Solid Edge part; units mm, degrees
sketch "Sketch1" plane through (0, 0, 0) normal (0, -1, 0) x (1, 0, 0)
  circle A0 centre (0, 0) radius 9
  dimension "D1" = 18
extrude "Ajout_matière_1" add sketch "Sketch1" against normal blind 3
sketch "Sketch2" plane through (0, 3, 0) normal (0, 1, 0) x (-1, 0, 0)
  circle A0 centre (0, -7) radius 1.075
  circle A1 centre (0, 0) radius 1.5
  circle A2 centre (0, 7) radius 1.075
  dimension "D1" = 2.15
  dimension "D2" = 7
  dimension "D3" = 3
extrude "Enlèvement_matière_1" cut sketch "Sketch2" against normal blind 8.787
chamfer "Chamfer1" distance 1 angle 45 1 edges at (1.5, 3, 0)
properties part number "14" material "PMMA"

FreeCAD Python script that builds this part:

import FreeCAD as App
import Part
import Sketcher
Q = App.Units.Quantity


def edges_at(feature, points):
    """Names of the edges that pass closest to the given points."""
    edges = feature.Shape.Edges
    near = lambda p: min(range(len(edges)), key=lambda i: edges[i].distToShape(Part.Vertex(*p))[0])
    return sorted({f"Edge{near(p) + 1}" for p in points})

doc = App.newDocument("Part")
body = doc.addObject("PartDesign::Body", "Body")

# Sketch on XZ plane
sketch1 = doc.addObject("Sketcher::SketchObject", "Sketch")
body.addObject(sketch1)
sketch1.AttachmentSupport = (doc.XZ_Plane, [""])
sketch1.MapMode = "FlatFace"
sketch1.addGeometry(Part.Circle(App.Vector(0, 0, 0), App.Vector(0, 0, 1), 9), False)
sketch1.addConstraint([
    Sketcher.Constraint("Coincident", 0, 3, -1, 1),
    Sketcher.Constraint("Diameter", 0, Q("18 mm")),
])
pad1 = doc.addObject("PartDesign::Pad", "Pad")
body.addObject(pad1)
pad1.Profile = sketch1
pad1.Length = 3
pad1.Reversed = True

# Sketch on XZ plane
sketch2 = doc.addObject("Sketcher::SketchObject", "Sketch001")
body.addObject(sketch2)
sketch2.AttachmentSupport = (doc.XZ_Plane, [""])
sketch2.MapMode = "FlatFace"
sketch2.AttachmentOffset = App.Placement(App.Vector(0, 0, -3), App.Rotation())
sketch2.addGeometry([
    Part.Circle(App.Vector(0, -7, 0), App.Vector(0, 0, 1), 1.1),
    Part.Circle(App.Vector(0, 0, 0), App.Vector(0, 0, 1), 1.5),
    Part.Circle(App.Vector(0, 7, 0), App.Vector(0, 0, 1), 1.1),
], False)
sketch2.addConstraint([
    Sketcher.Constraint("Coincident", 1, 3, -1, 1),
    Sketcher.Constraint("Equal", 0, 2),
    Sketcher.Constraint("Symmetric", 0, 3, 2, 3, -1, 1),
    Sketcher.Constraint("PointOnObject", 0, 3, -2),
    Sketcher.Constraint("Diameter", 1, Q("3 mm")),
    Sketcher.Constraint("Diameter", 0, Q("2.15 mm")),
    Sketcher.Constraint("DistanceY", 0, 3, -1, 1, Q("7 mm")),
])
pocket1 = doc.addObject("PartDesign::Pocket", "Pocket")
body.addObject(pocket1)
pocket1.Profile = sketch2
pocket1.Length = 8.787
pocket1.Reversed = True
doc.recompute()

chamfer = doc.addObject("PartDesign::Chamfer", "Chamfer")
body.addObject(chamfer)
chamfer.Base = (pocket1, edges_at(pocket1, [(1.5, 3, 0)]))
chamfer.Size = 1

doc.recompute()
